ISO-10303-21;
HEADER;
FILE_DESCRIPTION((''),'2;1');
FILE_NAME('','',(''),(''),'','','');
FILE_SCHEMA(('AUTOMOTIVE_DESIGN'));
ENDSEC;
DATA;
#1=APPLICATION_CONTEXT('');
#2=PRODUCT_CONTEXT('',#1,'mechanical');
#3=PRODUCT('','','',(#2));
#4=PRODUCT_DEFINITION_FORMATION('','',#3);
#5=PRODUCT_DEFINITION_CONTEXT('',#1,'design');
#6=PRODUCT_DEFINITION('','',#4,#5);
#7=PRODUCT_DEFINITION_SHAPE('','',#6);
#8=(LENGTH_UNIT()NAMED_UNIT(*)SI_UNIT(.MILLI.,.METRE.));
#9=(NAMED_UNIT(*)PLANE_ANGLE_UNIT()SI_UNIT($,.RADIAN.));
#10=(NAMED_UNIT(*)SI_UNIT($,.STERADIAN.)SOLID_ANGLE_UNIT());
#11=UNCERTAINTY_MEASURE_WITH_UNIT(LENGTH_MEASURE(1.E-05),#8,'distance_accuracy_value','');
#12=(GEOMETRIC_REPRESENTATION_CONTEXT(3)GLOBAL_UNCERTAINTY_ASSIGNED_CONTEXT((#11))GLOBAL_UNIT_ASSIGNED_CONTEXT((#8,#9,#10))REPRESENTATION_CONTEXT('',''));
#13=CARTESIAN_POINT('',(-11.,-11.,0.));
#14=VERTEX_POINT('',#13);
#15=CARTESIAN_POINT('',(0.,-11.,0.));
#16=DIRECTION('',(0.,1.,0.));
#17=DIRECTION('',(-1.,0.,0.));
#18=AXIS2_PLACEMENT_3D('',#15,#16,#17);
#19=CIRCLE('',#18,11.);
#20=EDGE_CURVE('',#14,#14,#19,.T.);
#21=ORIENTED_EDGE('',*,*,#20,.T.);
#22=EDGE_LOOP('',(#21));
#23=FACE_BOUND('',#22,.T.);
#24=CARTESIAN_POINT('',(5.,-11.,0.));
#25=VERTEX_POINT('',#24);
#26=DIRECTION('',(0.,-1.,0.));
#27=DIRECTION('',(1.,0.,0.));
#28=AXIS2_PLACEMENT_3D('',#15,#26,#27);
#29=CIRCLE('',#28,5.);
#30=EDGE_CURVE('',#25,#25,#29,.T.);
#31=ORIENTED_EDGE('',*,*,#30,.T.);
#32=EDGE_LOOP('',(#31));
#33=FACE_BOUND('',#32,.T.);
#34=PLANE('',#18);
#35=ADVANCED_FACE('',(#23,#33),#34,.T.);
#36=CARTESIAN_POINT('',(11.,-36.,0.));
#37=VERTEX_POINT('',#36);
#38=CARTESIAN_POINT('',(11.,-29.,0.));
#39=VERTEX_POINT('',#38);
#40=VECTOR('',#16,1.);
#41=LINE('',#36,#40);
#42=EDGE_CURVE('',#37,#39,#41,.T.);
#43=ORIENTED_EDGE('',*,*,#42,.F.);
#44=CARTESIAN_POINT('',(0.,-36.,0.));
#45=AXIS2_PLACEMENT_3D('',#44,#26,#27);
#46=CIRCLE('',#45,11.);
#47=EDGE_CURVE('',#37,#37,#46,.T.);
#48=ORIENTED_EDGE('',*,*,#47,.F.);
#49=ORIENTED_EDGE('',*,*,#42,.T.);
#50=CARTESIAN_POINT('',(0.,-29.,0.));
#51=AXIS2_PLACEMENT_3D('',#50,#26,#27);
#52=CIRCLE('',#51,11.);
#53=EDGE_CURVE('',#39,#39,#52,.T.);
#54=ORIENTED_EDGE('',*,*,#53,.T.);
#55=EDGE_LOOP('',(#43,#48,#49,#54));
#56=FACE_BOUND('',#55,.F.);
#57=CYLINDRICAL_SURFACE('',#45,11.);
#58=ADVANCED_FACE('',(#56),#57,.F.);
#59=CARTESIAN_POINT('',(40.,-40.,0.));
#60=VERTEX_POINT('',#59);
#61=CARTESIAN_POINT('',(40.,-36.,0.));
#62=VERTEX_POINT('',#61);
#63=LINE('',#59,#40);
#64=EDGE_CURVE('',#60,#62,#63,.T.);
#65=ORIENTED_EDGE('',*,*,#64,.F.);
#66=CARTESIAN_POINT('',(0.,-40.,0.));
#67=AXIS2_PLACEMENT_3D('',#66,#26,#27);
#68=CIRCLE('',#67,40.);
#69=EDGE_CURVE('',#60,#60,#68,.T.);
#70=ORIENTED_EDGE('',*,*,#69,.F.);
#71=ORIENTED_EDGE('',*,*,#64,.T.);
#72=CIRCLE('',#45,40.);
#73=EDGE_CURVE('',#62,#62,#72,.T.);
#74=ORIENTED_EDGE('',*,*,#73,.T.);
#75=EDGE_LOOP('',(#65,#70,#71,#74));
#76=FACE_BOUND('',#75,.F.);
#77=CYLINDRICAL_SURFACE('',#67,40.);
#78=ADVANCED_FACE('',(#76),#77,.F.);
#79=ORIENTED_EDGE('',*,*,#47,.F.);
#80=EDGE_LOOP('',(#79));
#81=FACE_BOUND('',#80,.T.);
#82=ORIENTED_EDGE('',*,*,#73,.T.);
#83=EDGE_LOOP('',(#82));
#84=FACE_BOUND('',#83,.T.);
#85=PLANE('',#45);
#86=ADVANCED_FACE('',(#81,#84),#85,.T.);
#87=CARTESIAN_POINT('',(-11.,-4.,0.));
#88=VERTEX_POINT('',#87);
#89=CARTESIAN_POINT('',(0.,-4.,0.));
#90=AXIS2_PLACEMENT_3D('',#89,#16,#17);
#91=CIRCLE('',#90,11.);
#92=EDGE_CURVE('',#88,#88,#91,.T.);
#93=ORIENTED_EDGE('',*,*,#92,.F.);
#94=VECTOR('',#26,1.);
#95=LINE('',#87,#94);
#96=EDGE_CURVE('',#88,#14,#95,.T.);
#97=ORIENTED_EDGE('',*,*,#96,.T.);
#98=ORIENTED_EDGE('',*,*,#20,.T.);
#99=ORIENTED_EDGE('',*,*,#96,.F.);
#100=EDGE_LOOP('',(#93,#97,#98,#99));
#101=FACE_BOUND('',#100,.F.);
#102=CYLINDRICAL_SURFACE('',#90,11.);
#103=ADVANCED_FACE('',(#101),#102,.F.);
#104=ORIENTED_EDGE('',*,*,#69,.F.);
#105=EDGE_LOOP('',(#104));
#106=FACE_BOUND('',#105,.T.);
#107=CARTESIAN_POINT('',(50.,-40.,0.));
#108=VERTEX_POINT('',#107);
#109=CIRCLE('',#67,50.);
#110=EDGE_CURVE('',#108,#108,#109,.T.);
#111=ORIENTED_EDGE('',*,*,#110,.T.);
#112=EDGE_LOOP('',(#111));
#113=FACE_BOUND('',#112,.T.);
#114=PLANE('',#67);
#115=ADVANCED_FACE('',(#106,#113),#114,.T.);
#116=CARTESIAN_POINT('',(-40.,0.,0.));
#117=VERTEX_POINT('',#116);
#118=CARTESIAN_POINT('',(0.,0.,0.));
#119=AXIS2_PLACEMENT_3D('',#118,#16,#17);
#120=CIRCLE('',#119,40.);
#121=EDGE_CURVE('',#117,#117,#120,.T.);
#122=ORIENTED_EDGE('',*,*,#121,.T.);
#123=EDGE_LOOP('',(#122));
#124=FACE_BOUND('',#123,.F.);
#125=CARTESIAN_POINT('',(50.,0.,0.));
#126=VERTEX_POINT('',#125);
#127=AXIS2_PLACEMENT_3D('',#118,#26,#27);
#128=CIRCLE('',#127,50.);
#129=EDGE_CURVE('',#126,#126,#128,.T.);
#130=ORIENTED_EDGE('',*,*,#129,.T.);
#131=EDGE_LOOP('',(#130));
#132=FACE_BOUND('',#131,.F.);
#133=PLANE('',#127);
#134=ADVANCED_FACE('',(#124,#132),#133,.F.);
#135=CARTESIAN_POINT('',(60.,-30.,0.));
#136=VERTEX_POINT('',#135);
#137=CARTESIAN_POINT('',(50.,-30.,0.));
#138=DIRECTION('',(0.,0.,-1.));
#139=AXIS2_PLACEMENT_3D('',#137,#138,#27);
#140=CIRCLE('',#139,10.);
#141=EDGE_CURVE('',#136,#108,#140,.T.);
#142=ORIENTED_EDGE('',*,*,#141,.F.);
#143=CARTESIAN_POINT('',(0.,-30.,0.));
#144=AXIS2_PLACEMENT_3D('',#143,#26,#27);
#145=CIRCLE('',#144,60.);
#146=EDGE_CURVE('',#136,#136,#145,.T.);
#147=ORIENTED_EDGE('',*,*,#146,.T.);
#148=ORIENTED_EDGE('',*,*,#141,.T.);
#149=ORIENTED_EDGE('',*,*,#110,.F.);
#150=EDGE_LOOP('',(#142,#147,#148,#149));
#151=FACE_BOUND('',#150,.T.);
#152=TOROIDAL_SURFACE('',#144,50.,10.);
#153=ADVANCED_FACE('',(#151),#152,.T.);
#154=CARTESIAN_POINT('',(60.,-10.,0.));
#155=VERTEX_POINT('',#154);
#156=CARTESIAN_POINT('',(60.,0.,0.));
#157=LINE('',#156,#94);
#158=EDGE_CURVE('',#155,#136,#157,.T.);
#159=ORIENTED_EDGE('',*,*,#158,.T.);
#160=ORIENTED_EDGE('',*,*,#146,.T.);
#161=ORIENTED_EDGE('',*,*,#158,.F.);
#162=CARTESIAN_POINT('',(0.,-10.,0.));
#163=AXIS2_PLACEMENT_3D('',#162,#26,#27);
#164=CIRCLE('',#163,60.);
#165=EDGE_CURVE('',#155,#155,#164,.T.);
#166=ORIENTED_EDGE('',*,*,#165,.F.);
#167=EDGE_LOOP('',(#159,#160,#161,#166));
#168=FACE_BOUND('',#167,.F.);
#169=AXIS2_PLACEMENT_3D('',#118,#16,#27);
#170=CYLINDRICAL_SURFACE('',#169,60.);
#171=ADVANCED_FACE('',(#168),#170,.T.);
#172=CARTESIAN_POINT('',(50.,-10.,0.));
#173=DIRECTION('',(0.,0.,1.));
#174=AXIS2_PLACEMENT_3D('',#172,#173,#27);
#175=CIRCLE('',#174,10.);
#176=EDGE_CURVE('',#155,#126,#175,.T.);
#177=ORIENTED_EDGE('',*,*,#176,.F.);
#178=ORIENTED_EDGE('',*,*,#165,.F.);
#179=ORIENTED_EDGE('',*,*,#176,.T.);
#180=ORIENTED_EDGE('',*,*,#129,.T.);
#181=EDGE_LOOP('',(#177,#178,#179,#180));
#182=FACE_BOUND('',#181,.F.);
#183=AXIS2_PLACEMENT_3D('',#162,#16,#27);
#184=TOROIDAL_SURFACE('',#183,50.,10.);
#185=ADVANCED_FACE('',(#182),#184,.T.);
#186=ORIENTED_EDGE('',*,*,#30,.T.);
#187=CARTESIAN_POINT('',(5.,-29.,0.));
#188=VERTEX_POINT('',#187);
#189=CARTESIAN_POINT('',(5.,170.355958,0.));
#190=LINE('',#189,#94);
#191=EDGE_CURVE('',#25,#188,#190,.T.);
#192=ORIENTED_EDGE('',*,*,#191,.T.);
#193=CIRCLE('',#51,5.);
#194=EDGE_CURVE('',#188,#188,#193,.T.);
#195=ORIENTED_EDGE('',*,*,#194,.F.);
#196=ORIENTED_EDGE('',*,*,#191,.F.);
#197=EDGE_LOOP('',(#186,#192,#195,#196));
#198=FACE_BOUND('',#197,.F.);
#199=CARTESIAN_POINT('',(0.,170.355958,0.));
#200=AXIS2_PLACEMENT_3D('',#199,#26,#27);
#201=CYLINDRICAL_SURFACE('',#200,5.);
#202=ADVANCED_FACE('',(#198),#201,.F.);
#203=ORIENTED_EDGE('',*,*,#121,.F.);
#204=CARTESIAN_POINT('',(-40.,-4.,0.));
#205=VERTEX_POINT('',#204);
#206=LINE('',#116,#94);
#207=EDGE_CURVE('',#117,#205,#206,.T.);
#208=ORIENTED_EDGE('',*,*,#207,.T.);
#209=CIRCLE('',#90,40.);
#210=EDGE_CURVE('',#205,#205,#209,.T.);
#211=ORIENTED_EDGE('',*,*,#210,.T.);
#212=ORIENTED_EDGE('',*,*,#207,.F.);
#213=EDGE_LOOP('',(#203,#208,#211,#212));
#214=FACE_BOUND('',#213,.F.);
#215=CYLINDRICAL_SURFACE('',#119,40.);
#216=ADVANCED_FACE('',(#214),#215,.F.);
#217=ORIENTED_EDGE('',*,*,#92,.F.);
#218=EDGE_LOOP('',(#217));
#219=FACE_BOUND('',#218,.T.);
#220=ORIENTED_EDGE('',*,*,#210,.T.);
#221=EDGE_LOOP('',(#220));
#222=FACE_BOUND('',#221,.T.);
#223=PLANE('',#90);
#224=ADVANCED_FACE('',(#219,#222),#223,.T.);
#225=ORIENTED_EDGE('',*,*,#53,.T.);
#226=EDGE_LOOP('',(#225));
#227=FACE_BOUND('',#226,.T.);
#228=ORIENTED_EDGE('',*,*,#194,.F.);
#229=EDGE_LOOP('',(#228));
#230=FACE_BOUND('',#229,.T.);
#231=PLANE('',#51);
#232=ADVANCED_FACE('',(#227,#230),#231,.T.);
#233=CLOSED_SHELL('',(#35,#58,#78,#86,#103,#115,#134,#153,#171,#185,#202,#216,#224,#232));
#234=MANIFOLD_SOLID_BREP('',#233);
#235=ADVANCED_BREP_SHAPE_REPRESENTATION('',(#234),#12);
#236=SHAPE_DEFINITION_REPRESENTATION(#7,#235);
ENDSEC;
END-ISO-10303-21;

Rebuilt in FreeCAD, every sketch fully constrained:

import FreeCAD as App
import Part
import Sketcher

V = App.Vector
Q = App.Units.Quantity

doc = App.newDocument("Part")
params = doc.addObject("Spreadsheet::Sheet", "Params")
for row, (alias, value) in enumerate([
    ("sketch1_diameter", "120 mm"),
    ("pad1_length", "40 mm"),
    ("fillet_radius", "10 mm"),
    ("sketch2_diameter", "80 mm"),
    ("pocket1_length", "4 mm"),
    ("sketch3_diameter", "80 mm"),
    ("pocket2_length", "4 mm"),
    ("sketch4_diameter", "22 mm"),
    ("pocket3_length", "7 mm"),
    ("sketch5_diameter", "22 mm"),
    ("pocket4_length", "7 mm"),
    ("sketch6_diameter", "10 mm"),
    ("hole_diameter", "10 mm"),
], start=1):
    params.set(f"A{row}", alias)
    params.set(f"B{row}", "=" + value)
    params.setAlias(f"B{row}", alias)

body = doc.addObject("PartDesign::Body", "Body")

sketch1 = body.newObject("Sketcher::SketchObject", "Sketch")
sketch1.AttachmentSupport = (doc.getObject("XZ_Plane"), [""])
sketch1.MapMode = "FlatFace"
sketch1.addGeometry(Part.Circle(V(0, 0, 0), V(0, 0, 1), 60), False)
sketch1.addConstraint([
    Sketcher.Constraint("Coincident", 0, 3, -1, 1),
    Sketcher.Constraint("Diameter", 0, Q("120 mm")),
])
sketch1.setExpression("Constraints[1]", "Params.sketch1_diameter")
pad1 = body.newObject("PartDesign::Pad", "Pad")
pad1.Profile = sketch1
pad1.setExpression("Length", "Params.pad1_length")
doc.recompute()

fillet = body.newObject("PartDesign::Fillet", "Fillet")
fillet.Base = (pad1, ["Edge1"])
fillet.UseAllEdges = True
fillet.setExpression("Radius", "Params.fillet_radius")

sketch2 = body.newObject("Sketcher::SketchObject", "Sketch001")
sketch2.AttachmentSupport = (doc.getObject("XZ_Plane"), [""])
sketch2.MapMode = "FlatFace"
sketch2.AttachmentOffset = App.Placement(V(0, 0, 40), App.Rotation())
sketch2.addGeometry(Part.Circle(V(0, 0, 0), V(0, 0, 1), 40), False)
sketch2.addConstraint([
    Sketcher.Constraint("Coincident", 0, 3, -1, 1),
    Sketcher.Constraint("Diameter", 0, Q("80 mm")),
])
sketch2.setExpression("Constraints[1]", "Params.sketch2_diameter")
pocket1 = body.newObject("PartDesign::Pocket", "Pocket")
pocket1.Profile = sketch2
pocket1.setExpression("Length", "Params.pocket1_length")

sketch3 = body.newObject("Sketcher::SketchObject", "Sketch002")
sketch3.AttachmentSupport = (doc.getObject("XZ_Plane"), [""])
sketch3.MapMode = "FlatFace"
sketch3.addGeometry(Part.Circle(V(0, 0, 0), V(0, 0, 1), 40), False)
sketch3.addConstraint([
    Sketcher.Constraint("Coincident", 0, 3, -1, 1),
    Sketcher.Constraint("Diameter", 0, Q("80 mm")),
])
sketch3.setExpression("Constraints[1]", "Params.sketch3_diameter")
pocket2 = body.newObject("PartDesign::Pocket", "Pocket001")
pocket2.Profile = sketch3
pocket2.setExpression("Length", "Params.pocket2_length")
pocket2.Reversed = True

sketch4 = body.newObject("Sketcher::SketchObject", "Sketch003")
sketch4.AttachmentSupport = (doc.getObject("XZ_Plane"), [""])
sketch4.MapMode = "FlatFace"
sketch4.AttachmentOffset = App.Placement(V(0, 0, 4), App.Rotation())
sketch4.addGeometry(Part.Circle(V(0, 0, 0), V(0, 0, 1), 11), False)
sketch4.addConstraint([
    Sketcher.Constraint("Coincident", 0, 3, -1, 1),
    Sketcher.Constraint("Diameter", 0, Q("22 mm")),
])
sketch4.setExpression("Constraints[1]", "Params.sketch4_diameter")
pocket3 = body.newObject("PartDesign::Pocket", "Pocket002")
pocket3.Profile = sketch4
pocket3.setExpression("Length", "Params.pocket3_length")
pocket3.Reversed = True

sketch5 = body.newObject("Sketcher::SketchObject", "Sketch004")
sketch5.AttachmentSupport = (doc.getObject("XZ_Plane"), [""])
sketch5.MapMode = "FlatFace"
sketch5.AttachmentOffset = App.Placement(V(0, 0, 36), App.Rotation())
sketch5.addGeometry(Part.Circle(V(0, 0, 0), V(0, 0, 1), 11), False)
sketch5.addConstraint([
    Sketcher.Constraint("Coincident", 0, 3, -1, 1),
    Sketcher.Constraint("Diameter", 0, Q("22 mm")),
])
sketch5.setExpression("Constraints[1]", "Params.sketch5_diameter")
pocket4 = body.newObject("PartDesign::Pocket", "Pocket003")
pocket4.Profile = sketch5
pocket4.setExpression("Length", "Params.pocket4_length")

sketch6 = body.newObject("Sketcher::SketchObject", "Sketch005")
sketch6.AttachmentSupport = (doc.getObject("XZ_Plane"), [""])
sketch6.MapMode = "FlatFace"
sketch6.AttachmentOffset = App.Placement(V(0, 0, 4), App.Rotation())
sketch6.addGeometry(Part.Circle(V(0, 0, 0), V(0, 0, 1), 5), False)
sketch6.addConstraint([
    Sketcher.Constraint("Coincident", 0, 3, -1, 1),
    Sketcher.Constraint("Diameter", 0, Q("10 mm")),
])
sketch6.setExpression("Constraints[1]", "Params.sketch6_diameter")
doc.recompute()
hole = body.newObject("PartDesign::Hole", "Hole")
hole.Profile = sketch6
hole.ThreadType = "None"
hole.setExpression("Diameter", "Params.hole_diameter")
hole.DepthType = "ThroughAll"
hole.Reversed = True

doc.recompute()
